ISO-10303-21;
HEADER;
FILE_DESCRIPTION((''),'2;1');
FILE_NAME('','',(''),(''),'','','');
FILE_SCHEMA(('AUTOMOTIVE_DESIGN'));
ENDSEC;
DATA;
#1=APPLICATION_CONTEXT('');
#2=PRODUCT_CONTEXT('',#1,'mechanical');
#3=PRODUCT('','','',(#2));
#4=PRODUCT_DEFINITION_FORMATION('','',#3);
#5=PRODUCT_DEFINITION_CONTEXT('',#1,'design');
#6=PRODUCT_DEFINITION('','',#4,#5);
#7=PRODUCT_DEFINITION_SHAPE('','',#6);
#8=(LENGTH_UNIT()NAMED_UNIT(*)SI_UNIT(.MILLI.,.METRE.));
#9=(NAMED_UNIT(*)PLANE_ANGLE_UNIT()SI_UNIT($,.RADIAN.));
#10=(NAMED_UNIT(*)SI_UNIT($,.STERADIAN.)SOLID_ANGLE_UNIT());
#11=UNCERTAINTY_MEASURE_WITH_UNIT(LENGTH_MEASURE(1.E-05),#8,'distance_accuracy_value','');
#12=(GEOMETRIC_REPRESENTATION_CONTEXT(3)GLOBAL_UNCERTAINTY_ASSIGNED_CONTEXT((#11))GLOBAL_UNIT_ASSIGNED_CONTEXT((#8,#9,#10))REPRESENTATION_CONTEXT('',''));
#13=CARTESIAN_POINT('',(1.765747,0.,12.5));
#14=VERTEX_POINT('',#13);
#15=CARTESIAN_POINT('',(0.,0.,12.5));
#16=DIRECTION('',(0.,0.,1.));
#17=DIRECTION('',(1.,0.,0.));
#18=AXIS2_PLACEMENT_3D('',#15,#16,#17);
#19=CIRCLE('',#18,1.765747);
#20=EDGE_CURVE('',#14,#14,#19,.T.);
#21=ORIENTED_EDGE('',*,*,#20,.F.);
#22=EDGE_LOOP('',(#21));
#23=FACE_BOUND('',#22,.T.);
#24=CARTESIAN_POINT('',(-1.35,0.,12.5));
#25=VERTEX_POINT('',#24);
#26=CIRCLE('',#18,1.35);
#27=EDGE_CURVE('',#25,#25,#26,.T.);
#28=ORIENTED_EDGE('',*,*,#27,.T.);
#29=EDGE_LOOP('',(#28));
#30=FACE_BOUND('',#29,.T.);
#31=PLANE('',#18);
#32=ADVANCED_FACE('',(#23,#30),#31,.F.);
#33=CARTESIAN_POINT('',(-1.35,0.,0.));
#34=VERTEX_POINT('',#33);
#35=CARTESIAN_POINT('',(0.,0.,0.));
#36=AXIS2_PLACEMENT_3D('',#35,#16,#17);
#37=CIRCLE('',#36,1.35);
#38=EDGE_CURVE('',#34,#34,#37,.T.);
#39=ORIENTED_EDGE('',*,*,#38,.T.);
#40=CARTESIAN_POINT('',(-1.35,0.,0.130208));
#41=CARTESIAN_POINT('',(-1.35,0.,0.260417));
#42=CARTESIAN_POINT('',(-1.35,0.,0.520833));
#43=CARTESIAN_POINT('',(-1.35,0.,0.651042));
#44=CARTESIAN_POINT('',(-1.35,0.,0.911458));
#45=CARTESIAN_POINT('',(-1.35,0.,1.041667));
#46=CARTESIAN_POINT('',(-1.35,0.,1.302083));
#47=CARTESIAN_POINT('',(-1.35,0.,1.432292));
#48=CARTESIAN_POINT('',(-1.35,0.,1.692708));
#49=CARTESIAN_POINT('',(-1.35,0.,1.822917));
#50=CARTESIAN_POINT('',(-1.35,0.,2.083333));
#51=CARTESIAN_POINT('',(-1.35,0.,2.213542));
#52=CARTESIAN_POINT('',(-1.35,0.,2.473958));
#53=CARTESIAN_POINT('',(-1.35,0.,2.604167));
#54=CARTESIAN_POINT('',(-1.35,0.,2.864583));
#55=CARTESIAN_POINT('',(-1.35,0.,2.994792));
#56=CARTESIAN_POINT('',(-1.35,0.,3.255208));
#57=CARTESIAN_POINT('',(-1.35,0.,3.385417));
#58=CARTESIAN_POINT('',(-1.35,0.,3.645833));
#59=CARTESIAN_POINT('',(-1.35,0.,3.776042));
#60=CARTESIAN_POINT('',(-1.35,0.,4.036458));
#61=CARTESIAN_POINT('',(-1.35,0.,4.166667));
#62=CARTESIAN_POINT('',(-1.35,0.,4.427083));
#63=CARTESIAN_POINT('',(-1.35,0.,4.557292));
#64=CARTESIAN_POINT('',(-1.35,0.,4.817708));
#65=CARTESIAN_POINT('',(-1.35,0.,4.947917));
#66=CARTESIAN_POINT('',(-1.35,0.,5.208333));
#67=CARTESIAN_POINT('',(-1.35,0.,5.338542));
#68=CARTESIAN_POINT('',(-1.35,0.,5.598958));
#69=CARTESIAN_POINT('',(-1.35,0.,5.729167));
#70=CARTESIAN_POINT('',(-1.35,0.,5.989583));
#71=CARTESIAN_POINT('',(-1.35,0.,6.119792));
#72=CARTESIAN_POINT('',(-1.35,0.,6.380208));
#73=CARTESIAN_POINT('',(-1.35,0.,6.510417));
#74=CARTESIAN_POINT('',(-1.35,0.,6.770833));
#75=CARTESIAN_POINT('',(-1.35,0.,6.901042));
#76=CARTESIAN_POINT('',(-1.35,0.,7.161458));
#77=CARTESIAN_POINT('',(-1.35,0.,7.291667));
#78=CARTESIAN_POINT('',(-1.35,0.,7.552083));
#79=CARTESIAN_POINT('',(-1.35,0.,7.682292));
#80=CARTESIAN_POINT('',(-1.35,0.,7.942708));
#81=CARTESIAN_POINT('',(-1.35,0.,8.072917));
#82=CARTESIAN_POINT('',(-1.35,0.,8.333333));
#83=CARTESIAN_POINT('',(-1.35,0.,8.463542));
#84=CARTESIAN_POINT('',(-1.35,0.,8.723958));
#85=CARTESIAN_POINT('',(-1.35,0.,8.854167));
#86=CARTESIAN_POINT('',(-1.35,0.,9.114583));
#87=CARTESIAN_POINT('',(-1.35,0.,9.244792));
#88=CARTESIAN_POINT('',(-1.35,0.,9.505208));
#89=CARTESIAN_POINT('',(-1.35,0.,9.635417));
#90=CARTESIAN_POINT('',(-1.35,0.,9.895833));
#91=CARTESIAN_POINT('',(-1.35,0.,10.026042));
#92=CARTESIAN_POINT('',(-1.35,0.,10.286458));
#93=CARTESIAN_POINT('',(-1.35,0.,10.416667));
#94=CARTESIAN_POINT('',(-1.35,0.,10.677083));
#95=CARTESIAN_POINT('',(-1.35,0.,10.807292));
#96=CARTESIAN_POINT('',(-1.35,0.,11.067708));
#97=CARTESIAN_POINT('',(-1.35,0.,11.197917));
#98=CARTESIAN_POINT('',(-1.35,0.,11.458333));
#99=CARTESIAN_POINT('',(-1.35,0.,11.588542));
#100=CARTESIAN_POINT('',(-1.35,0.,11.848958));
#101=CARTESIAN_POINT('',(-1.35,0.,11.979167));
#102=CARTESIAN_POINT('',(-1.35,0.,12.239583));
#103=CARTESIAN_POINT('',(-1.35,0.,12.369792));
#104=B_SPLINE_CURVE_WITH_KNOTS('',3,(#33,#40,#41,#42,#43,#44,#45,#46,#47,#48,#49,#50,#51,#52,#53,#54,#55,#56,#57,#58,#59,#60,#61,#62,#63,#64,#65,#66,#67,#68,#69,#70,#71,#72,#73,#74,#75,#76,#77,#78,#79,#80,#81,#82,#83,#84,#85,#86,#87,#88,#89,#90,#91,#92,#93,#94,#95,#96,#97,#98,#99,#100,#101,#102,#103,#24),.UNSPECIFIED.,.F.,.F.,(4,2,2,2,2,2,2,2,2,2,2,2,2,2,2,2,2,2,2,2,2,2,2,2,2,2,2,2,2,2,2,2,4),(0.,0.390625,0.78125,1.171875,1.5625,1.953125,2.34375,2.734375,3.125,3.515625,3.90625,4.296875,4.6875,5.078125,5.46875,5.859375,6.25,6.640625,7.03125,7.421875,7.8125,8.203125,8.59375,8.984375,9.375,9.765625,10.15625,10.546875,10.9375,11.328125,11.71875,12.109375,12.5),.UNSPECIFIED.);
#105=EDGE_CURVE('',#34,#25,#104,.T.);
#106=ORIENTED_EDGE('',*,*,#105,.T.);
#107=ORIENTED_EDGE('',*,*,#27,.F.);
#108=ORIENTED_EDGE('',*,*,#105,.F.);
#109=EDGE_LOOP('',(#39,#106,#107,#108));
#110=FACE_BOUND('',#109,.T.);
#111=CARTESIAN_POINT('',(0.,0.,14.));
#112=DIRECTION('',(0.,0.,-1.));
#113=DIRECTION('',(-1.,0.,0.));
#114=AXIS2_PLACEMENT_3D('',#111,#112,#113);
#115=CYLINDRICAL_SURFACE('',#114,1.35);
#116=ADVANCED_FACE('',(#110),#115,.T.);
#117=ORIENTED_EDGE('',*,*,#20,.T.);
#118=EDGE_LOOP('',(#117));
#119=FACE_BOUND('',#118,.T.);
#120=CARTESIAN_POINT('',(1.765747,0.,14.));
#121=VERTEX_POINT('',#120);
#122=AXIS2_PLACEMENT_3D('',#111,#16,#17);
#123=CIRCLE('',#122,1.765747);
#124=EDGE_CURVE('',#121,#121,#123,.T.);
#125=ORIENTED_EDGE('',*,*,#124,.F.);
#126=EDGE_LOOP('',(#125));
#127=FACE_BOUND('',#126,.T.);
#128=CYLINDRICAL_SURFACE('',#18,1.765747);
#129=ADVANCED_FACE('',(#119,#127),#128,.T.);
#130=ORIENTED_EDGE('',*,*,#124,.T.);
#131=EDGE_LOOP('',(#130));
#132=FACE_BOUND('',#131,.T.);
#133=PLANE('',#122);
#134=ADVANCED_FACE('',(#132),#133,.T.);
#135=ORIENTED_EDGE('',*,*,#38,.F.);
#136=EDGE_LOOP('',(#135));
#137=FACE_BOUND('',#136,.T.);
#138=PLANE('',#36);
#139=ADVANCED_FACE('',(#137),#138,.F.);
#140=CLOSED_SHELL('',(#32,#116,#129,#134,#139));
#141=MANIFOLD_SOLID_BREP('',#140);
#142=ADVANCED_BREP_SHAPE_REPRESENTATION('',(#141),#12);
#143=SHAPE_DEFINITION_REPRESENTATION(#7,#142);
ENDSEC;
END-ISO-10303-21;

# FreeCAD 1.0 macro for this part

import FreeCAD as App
import Part
import Sketcher
Q = App.Units.Quantity

doc = App.newDocument("Part")
params = doc.addObject("Spreadsheet::Sheet", "Params")
for row, (alias, value) in enumerate([
    ("sketch1_diameter", "2.7 mm"),
    ("pad1_length", "14 mm"),
    ("pad2_length", "1.5 mm"),
], start=1):
    params.set(f"A{row}", alias)
    params.set(f"B{row}", "=" + value)
    params.setAlias(f"B{row}", alias)

body = doc.addObject("PartDesign::Body", "Body")

# Sketch on XY plane
sketch1 = body.newObject("Sketcher::SketchObject", "Sketch")
sketch1.AttachmentSupport = (doc.getObject("XY_Plane"), [""])
sketch1.MapMode = "FlatFace"
sketch1.addGeometry(Part.Circle(App.Vector(0, 0, 0), App.Vector(0, 0, 1), 1.4), False)
sketch1.addConstraint([
    Sketcher.Constraint("Coincident", 0, 3, -1, 1),
    Sketcher.Constraint("Diameter", 0, Q("2.7 mm")),
])
sketch1.setExpression("Constraints[1]", "Params.sketch1_diameter")
pad1 = body.newObject("PartDesign::Pad", "Pad")
pad1.Profile = sketch1
pad1.setExpression("Length", "Params.pad1_length")

# Sketch on XY plane
sketch2 = body.newObject("Sketcher::SketchObject", "Sketch001")
sketch2.AttachmentSupport = (doc.getObject("XY_Plane"), [""])
sketch2.MapMode = "FlatFace"
sketch2.AttachmentOffset = App.Placement(App.Vector(0, 0, 14), App.Rotation())
sketch2.addGeometry(Part.Circle(App.Vector(0, 0, 0), App.Vector(0, 0, 1), 1.8), False)
sketch2.addConstraint([
    Sketcher.Constraint("Coincident", 0, 3, -1, 1),
    Sketcher.Constraint("Diameter", 0, Q("3.531494 mm")),
])
pad2 = body.newObject("PartDesign::Pad", "Pad001")
pad2.Profile = sketch2
pad2.setExpression("Length", "Params.pad2_length")
pad2.Reversed = True

doc.recompute()
